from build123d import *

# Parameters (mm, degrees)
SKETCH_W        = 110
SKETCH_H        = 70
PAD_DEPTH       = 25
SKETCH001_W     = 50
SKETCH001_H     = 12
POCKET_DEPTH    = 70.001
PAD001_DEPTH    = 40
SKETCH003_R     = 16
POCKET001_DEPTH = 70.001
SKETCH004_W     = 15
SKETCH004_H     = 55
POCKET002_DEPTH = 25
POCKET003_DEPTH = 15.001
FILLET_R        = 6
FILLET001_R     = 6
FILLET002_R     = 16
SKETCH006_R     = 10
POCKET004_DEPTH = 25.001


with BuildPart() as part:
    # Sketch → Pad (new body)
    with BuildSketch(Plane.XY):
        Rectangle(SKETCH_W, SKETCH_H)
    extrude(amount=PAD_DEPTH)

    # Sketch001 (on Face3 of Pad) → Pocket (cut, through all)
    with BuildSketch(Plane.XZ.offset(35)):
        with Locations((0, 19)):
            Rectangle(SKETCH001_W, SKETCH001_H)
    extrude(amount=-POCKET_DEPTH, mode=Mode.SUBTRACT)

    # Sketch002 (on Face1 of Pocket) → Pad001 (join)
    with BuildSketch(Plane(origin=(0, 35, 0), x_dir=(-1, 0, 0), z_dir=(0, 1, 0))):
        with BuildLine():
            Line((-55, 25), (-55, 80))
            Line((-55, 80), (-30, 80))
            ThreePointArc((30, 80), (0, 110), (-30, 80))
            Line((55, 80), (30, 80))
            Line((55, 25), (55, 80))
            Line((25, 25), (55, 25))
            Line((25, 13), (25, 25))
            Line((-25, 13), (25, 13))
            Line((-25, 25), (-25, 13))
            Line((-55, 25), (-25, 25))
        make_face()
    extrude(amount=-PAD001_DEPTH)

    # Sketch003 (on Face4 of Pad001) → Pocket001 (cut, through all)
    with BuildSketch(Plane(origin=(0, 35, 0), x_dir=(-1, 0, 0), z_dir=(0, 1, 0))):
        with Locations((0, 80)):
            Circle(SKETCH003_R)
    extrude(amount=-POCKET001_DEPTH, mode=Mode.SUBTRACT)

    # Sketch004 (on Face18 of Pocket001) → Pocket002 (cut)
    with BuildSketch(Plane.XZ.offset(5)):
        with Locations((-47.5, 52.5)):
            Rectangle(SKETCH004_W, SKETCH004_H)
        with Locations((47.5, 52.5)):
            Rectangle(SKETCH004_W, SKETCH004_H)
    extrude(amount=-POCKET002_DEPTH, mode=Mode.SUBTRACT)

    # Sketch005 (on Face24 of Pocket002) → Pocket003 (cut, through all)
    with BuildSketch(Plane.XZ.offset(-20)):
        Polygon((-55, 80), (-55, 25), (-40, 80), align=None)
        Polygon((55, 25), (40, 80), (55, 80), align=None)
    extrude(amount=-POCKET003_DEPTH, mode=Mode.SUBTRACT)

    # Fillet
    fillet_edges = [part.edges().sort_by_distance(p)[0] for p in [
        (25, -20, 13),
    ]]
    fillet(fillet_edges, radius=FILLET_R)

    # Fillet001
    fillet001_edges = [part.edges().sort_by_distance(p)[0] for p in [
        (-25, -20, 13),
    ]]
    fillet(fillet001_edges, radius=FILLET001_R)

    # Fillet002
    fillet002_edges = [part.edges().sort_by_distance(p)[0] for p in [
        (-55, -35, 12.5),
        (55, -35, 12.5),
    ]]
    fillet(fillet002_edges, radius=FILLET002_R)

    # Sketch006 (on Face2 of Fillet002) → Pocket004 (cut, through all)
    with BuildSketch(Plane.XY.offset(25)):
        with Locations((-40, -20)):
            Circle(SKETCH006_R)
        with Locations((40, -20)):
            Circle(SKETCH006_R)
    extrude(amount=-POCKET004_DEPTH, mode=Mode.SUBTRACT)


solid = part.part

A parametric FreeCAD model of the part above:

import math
import FreeCAD as App
import Part
import Sketcher


def edges_at(feature, points):
    """Names of the edges that pass closest to the given points."""
    edges = feature.Shape.Edges
    near = lambda p: min(range(len(edges)), key=lambda i: edges[i].distToShape(Part.Vertex(*p))[0])
    return sorted({f"Edge{near(p) + 1}" for p in points})

doc = App.newDocument("Part")
params = doc.addObject("Spreadsheet::Sheet", "Params")
for row, (alias, value) in enumerate([
    ("sketch1_width", "110 mm"),
    ("sketch1_height", "70 mm"),
    ("pad1_length", "25 mm"),
    ("sketch2_width", "50 mm"),
    ("sketch2_height", "12 mm"),
    ("sketch3_radius", "30 mm"),
    ("sketch3_width", "30 mm"),
    ("sketch3_width2", "50 mm"),
    ("sketch3_height", "55 mm"),
    ("sketch3_height2", "12 mm"),
    ("pad2_length", "40 mm"),
    ("sketch4_diameter", "32 mm"),
    ("sketch5_width", "15 mm"),
    ("sketch5_height", "55 mm"),
    ("pocket3_length", "25 mm"),
    ("sketch6_width", "15 mm"),
    ("sketch6_height", "55 mm"),
    ("fillet_radius", "6 mm"),
    ("fillet2_radius", "6 mm"),
    ("fillet3_radius", "16 mm"),
    ("sketch7_diameter", "20 mm"),
], start=1):
    params.set(f"A{row}", alias)
    params.set(f"B{row}", "=" + value)
    params.setAlias(f"B{row}", alias)

body = doc.addObject("PartDesign::Body", "Body")

# Sketch on XY plane
sketch1 = doc.addObject("Sketcher::SketchObject", "Sketch")
body.addObject(sketch1)
sketch1.AttachmentSupport = (doc.XY_Plane, [""])
sketch1.MapMode = "FlatFace"
sketch1.addGeometry([
    Part.LineSegment(App.Vector(-55, 35, 0), App.Vector(-55, -35, 0)),
    Part.LineSegment(App.Vector(-55, -35, 0), App.Vector(55, -35, 0)),
    Part.LineSegment(App.Vector(55, -35, 0), App.Vector(55, 35, 0)),
    Part.LineSegment(App.Vector(55, 35, 0), App.Vector(-55, 35, 0)),
], False)
sketch1.addConstraint([
    Sketcher.Constraint("Coincident", 0, 2, 1, 1),
    Sketcher.Constraint("Coincident", 1, 2, 2, 1),
    Sketcher.Constraint("Coincident", 2, 2, 3, 1),
    Sketcher.Constraint("Coincident", 3, 2, 0, 1),
    Sketcher.Constraint("Vertical", 0),
    Sketcher.Constraint("Horizontal", 1),
    Sketcher.Constraint("Vertical", 2),
    Sketcher.Constraint("Horizontal", 3),
    Sketcher.Constraint("Symmetric", 0, 2, 2, 2, -1, 1),
    Sketcher.Constraint("DistanceX", 1, 1, 1, 2, 110.0),
    Sketcher.Constraint("DistanceY", 0, 2, 0, 1, 70.0),
])
sketch1.setExpression("Constraints[9]", "Params.sketch1_width")
sketch1.setExpression("Constraints[10]", "Params.sketch1_height")
pad1 = doc.addObject("PartDesign::Pad", "Pad")
body.addObject(pad1)
pad1.Profile = sketch1
pad1.setExpression("Length", "Params.pad1_length")

# Sketch on XZ plane
sketch2 = doc.addObject("Sketcher::SketchObject", "Sketch001")
body.addObject(sketch2)
sketch2.AttachmentSupport = (doc.XZ_Plane, [""])
sketch2.MapMode = "FlatFace"
sketch2.AttachmentOffset = App.Placement(App.Vector(0, 0, 35), App.Rotation())
sketch2.addGeometry([
    Part.LineSegment(App.Vector(-25, 25, 0), App.Vector(-25, 13, 0)),
    Part.LineSegment(App.Vector(-25, 13, 0), App.Vector(25, 13, 0)),
    Part.LineSegment(App.Vector(25, 13, 0), App.Vector(25, 25, 0)),
    Part.LineSegment(App.Vector(25, 25, 0), App.Vector(-25, 25, 0)),
], False)
sketch2.addConstraint([
    Sketcher.Constraint("Coincident", 0, 2, 1, 1),
    Sketcher.Constraint("Coincident", 1, 2, 2, 1),
    Sketcher.Constraint("Coincident", 2, 2, 3, 1),
    Sketcher.Constraint("Coincident", 3, 2, 0, 1),
    Sketcher.Constraint("Vertical", 0),
    Sketcher.Constraint("Horizontal", 1),
    Sketcher.Constraint("Vertical", 2),
    Sketcher.Constraint("Horizontal", 3),
    Sketcher.Constraint("DistanceX", 1, 1, 1, 2, 50.0),
    Sketcher.Constraint("DistanceY", 0, 2, 0, 1, 12.0),
    Sketcher.Constraint("DistanceX", 0, 2, -1, 1, 25.0),
    Sketcher.Constraint("DistanceY", -1, 1, 0, 2, 13.0),
])
sketch2.setExpression("Constraints[8]", "Params.sketch2_width")
sketch2.setExpression("Constraints[9]", "Params.sketch2_height")
pocket1 = doc.addObject("PartDesign::Pocket", "Pocket")
body.addObject(pocket1)
pocket1.Profile = sketch2
pocket1.Type = "ThroughAll"

# Sketch on XZ plane
sketch3 = doc.addObject("Sketcher::SketchObject", "Sketch002")
body.addObject(sketch3)
sketch3.AttachmentSupport = (doc.XZ_Plane, [""])
sketch3.MapMode = "FlatFace"
sketch3.AttachmentOffset = App.Placement(App.Vector(0, 0, -35), App.Rotation())
sketch3.addGeometry([
    Part.LineSegment(App.Vector(55, 80, 0), App.Vector(55, 25, 0)),  # 0
    Part.LineSegment(App.Vector(55, 25, 0), App.Vector(25, 25, 0)),  # 1
    Part.LineSegment(App.Vector(25, 25, 0), App.Vector(25, 13, 0)),  # 2
    Part.LineSegment(App.Vector(25, 13, 0), App.Vector(-25, 13, 0)),  # 3
    Part.LineSegment(App.Vector(-25, 13, 0), App.Vector(-25, 25, 0)),  # 4
    Part.LineSegment(App.Vector(-25, 25, 0), App.Vector(-55, 25, 0)),  # 5
    Part.LineSegment(App.Vector(-55, 25, 0), App.Vector(-55, 80, 0)),  # 6
    Part.LineSegment(App.Vector(-55, 80, 0), App.Vector(-30, 80, 0)),  # 7
    Part.ArcOfCircle(Part.Circle(App.Vector(0, 80, 0), App.Vector(0, 0, 1), 30), math.radians(0), math.radians(180)),  # 8
    Part.LineSegment(App.Vector(30, 80, 0), App.Vector(55, 80, 0)),  # 9
], False)
sketch3.addConstraint([
    Sketcher.Constraint("Coincident", 0, 2, 1, 1),
    Sketcher.Constraint("Coincident", 1, 2, 2, 1),
    Sketcher.Constraint("Coincident", 2, 2, 3, 1),
    Sketcher.Constraint("Coincident", 3, 2, 4, 1),
    Sketcher.Constraint("Coincident", 4, 2, 5, 1),
    Sketcher.Constraint("Coincident", 5, 2, 6, 1),
    Sketcher.Constraint("Coincident", 6, 2, 7, 1),
    Sketcher.Constraint("Coincident", 7, 2, 8, 2),
    Sketcher.Constraint("Coincident", 8, 1, 9, 1),
    Sketcher.Constraint("Coincident", 9, 2, 0, 1),
    Sketcher.Constraint("Vertical", 0),
    Sketcher.Constraint("Horizontal", 1),
    Sketcher.Constraint("Vertical", 2),
    Sketcher.Constraint("Horizontal", 3),
    Sketcher.Constraint("Vertical", 4),
    Sketcher.Constraint("Horizontal", 5),
    Sketcher.Constraint("Vertical", 6),
    Sketcher.Constraint("Horizontal", 7),
    Sketcher.Constraint("Horizontal", 9),
    Sketcher.Constraint("Symmetric", 1, 2, 4, 2, -2),
    Sketcher.Constraint("Symmetric", 7, 2, 8, 1, -2),
    Sketcher.Constraint("Horizontal", 8, 3, 6, 2),
    Sketcher.Constraint("Equal", 1, 5),
    Sketcher.Constraint("Radius", 8, 30.0),
    Sketcher.Constraint("DistanceX", 1, 2, 1, 1, 30.0),
    Sketcher.Constraint("DistanceX", 3, 2, 3, 1, 50.0),
    Sketcher.Constraint("DistanceY", 0, 2, 0, 1, 55.0),
    Sketcher.Constraint("DistanceY", 2, 2, 2, 1, 12.0),
    Sketcher.Constraint("DistanceY", -1, 1, 8, 3, 80.0),
])
sketch3.setExpression("Constraints[23]", "Params.sketch3_radius")
sketch3.setExpression("Constraints[24]", "Params.sketch3_width")
sketch3.setExpression("Constraints[25]", "Params.sketch3_width2")
sketch3.setExpression("Constraints[26]", "Params.sketch3_height")
sketch3.setExpression("Constraints[27]", "Params.sketch3_height2")
pad2 = doc.addObject("PartDesign::Pad", "Pad001")
body.addObject(pad2)
pad2.Profile = sketch3
pad2.setExpression("Length", "Params.pad2_length")

# Sketch on XZ plane
sketch4 = doc.addObject("Sketcher::SketchObject", "Sketch003")
body.addObject(sketch4)
sketch4.AttachmentSupport = (doc.XZ_Plane, [""])
sketch4.MapMode = "FlatFace"
sketch4.AttachmentOffset = App.Placement(App.Vector(0, 0, -35), App.Rotation())
sketch4.addGeometry(Part.Circle(App.Vector(0, 80, 0), App.Vector(0, 0, 1), 16), False)
sketch4.addConstraint([
    Sketcher.Constraint("PointOnObject", 0, 3, -2),
    Sketcher.Constraint("Diameter", 0, 32.0),
    Sketcher.Constraint("DistanceY", -1, 1, 0, 3, 80.0),
])
sketch4.setExpression("Constraints[1]", "Params.sketch4_diameter")
pocket2 = doc.addObject("PartDesign::Pocket", "Pocket001")
body.addObject(pocket2)
pocket2.Profile = sketch4
pocket2.Type = "ThroughAll"
pocket2.Reversed = True

# Sketch on XZ plane
sketch5 = doc.addObject("Sketcher::SketchObject", "Sketch004")
body.addObject(sketch5)
sketch5.AttachmentSupport = (doc.XZ_Plane, [""])
sketch5.MapMode = "FlatFace"
sketch5.AttachmentOffset = App.Placement(App.Vector(0, 0, 5), App.Rotation())
sketch5.addGeometry([
    Part.LineSegment(App.Vector(-55, 80, 0), App.Vector(-55, 25, 0)),  # 0
    Part.LineSegment(App.Vector(-55, 25, 0), App.Vector(-40, 25, 0)),  # 1
    Part.LineSegment(App.Vector(-40, 25, 0), App.Vector(-40, 80, 0)),  # 2
    Part.LineSegment(App.Vector(-40, 80, 0), App.Vector(-55, 80, 0)),  # 3
    Part.LineSegment(App.Vector(40, 80, 0), App.Vector(40, 25, 0)),  # 4
    Part.LineSegment(App.Vector(40, 25, 0), App.Vector(55, 25, 0)),  # 5
    Part.LineSegment(App.Vector(55, 25, 0), App.Vector(55, 80, 0)),  # 6
    Part.LineSegment(App.Vector(55, 80, 0), App.Vector(40, 80, 0)),  # 7
], False)
sketch5.addConstraint([
    Sketcher.Constraint("Coincident", 0, 2, 1, 1),
    Sketcher.Constraint("Coincident", 1, 2, 2, 1),
    Sketcher.Constraint("Coincident", 2, 2, 3, 1),
    Sketcher.Constraint("Coincident", 3, 2, 0, 1),
    Sketcher.Constraint("Coincident", 4, 2, 5, 1),
    Sketcher.Constraint("Coincident", 5, 2, 6, 1),
    Sketcher.Constraint("Coincident", 6, 2, 7, 1),
    Sketcher.Constraint("Coincident", 7, 2, 4, 1),
    Sketcher.Constraint("Vertical", 0),
    Sketcher.Constraint("Horizontal", 1),
    Sketcher.Constraint("Vertical", 2),
    Sketcher.Constraint("Horizontal", 3),
    Sketcher.Constraint("Vertical", 4),
    Sketcher.Constraint("Horizontal", 5),
    Sketcher.Constraint("Vertical", 6),
    Sketcher.Constraint("Horizontal", 7),
    Sketcher.Constraint("Symmetric", 1, 2, 4, 2, -2),
    Sketcher.Constraint("Symmetric", 3, 2, 6, 2, -2),
    Sketcher.Constraint("DistanceX", 1, 1, 1, 2, 15.0),
    Sketcher.Constraint("DistanceY", 0, 2, 0, 1, 55.0),
    Sketcher.Constraint("DistanceX", 0, 2, -1, 1, 55.0),
    Sketcher.Constraint("DistanceY", -1, 1, 0, 2, 25.0),
])
sketch5.setExpression("Constraints[18]", "Params.sketch5_width")
sketch5.setExpression("Constraints[19]", "Params.sketch5_height")
pocket3 = doc.addObject("PartDesign::Pocket", "Pocket002")
body.addObject(pocket3)
pocket3.Profile = sketch5
pocket3.setExpression("Length", "Params.pocket3_length")

# Sketch on XZ plane
sketch6 = doc.addObject("Sketcher::SketchObject", "Sketch005")
body.addObject(sketch6)
sketch6.AttachmentSupport = (doc.XZ_Plane, [""])
sketch6.MapMode = "FlatFace"
sketch6.AttachmentOffset = App.Placement(App.Vector(0, 0, -20), App.Rotation())
sketch6.addGeometry([
    Part.LineSegment(App.Vector(-55, 80, 0), App.Vector(-55, 25, 0)),  # 0
    Part.LineSegment(App.Vector(-55, 25, 0), App.Vector(-40, 80, 0)),  # 1
    Part.LineSegment(App.Vector(-40, 80, 0), App.Vector(-55, 80, 0)),  # 2
    Part.LineSegment(App.Vector(40, 80, 0), App.Vector(55, 25, 0)),  # 3
    Part.LineSegment(App.Vector(55, 25, 0), App.Vector(55, 80, 0)),  # 4
    Part.LineSegment(App.Vector(55, 80, 0), App.Vector(40, 80, 0)),  # 5
], False)
sketch6.addConstraint([
    Sketcher.Constraint("Coincident", 0, 2, 1, 1),
    Sketcher.Constraint("Coincident", 1, 2, 2, 1),
    Sketcher.Constraint("Coincident", 2, 2, 0, 1),
    Sketcher.Constraint("Coincident", 3, 2, 4, 1),
    Sketcher.Constraint("Coincident", 4, 2, 5, 1),
    Sketcher.Constraint("Coincident", 5, 2, 3, 1),
    Sketcher.Constraint("Vertical", 0),
    Sketcher.Constraint("Horizontal", 2),
    Sketcher.Constraint("Vertical", 4),
    Sketcher.Constraint("Horizontal", 5),
    Sketcher.Constraint("Symmetric", 0, 2, 3, 2, -2),
    Sketcher.Constraint("Symmetric", 1, 2, 5, 2, -2),
    Sketcher.Constraint("DistanceX", 2, 2, 2, 1, 15.0),
    Sketcher.Constraint("DistanceY", 0, 2, 0, 1, 55.0),
    Sketcher.Constraint("DistanceX", 0, 2, -1, 1, 55.0),
    Sketcher.Constraint("DistanceY", -1, 1, 0, 2, 25.0),
])
sketch6.setExpression("Constraints[12]", "Params.sketch6_width")
sketch6.setExpression("Constraints[13]", "Params.sketch6_height")
pocket4 = doc.addObject("PartDesign::Pocket", "Pocket003")
body.addObject(pocket4)
pocket4.Profile = sketch6
pocket4.Type = "ThroughAll"
doc.recompute()

fillet = doc.addObject("PartDesign::Fillet", "Fillet")
body.addObject(fillet)
fillet.Base = (pocket4, edges_at(pocket4, [(25, -20, 13)]))
fillet.setExpression("Radius", "Params.fillet_radius")
doc.recompute()

fillet2 = doc.addObject("PartDesign::Fillet", "Fillet001")
body.addObject(fillet2)
fillet2.Base = (fillet, edges_at(fillet, [(-25, -20, 13)]))
fillet2.setExpression("Radius", "Params.fillet2_radius")
doc.recompute()

fillet3 = doc.addObject("PartDesign::Fillet", "Fillet002")
body.addObject(fillet3)
fillet3.Base = (fillet2, edges_at(fillet2, [(-55, -35, 12.5), (55, -35, 12.5)]))
fillet3.setExpression("Radius", "Params.fillet3_radius")

# Sketch on XY plane
sketch7 = doc.addObject("Sketcher::SketchObject", "Sketch006")
body.addObject(sketch7)
sketch7.AttachmentSupport = (doc.XY_Plane, [""])
sketch7.MapMode = "FlatFace"
sketch7.AttachmentOffset = App.Placement(App.Vector(0, 0, 25), App.Rotation())
sketch7.addGeometry([
    Part.Circle(App.Vector(-40, -20, 0), App.Vector(0, 0, 1), 10),
    Part.Circle(App.Vector(40, -20, 0), App.Vector(0, 0, 1), 10),
], False)
sketch7.addConstraint([
    Sketcher.Constraint("Equal", 0, 1),
    Sketcher.Constraint("Symmetric", 0, 3, 1, 3, -2),
    Sketcher.Constraint("Diameter", 0, 20.0),
    Sketcher.Constraint("DistanceX", 0, 3, -1, 1, 40.0),
    Sketcher.Constraint("DistanceY", 0, 3, -1, 1, 20.0),
])
sketch7.setExpression("Constraints[2]", "Params.sketch7_diameter")
pocket5 = doc.addObject("PartDesign::Pocket", "Pocket004")
body.addObject(pocket5)
pocket5.Profile = sketch7
pocket5.Type = "ThroughAll"

doc.recompute()
